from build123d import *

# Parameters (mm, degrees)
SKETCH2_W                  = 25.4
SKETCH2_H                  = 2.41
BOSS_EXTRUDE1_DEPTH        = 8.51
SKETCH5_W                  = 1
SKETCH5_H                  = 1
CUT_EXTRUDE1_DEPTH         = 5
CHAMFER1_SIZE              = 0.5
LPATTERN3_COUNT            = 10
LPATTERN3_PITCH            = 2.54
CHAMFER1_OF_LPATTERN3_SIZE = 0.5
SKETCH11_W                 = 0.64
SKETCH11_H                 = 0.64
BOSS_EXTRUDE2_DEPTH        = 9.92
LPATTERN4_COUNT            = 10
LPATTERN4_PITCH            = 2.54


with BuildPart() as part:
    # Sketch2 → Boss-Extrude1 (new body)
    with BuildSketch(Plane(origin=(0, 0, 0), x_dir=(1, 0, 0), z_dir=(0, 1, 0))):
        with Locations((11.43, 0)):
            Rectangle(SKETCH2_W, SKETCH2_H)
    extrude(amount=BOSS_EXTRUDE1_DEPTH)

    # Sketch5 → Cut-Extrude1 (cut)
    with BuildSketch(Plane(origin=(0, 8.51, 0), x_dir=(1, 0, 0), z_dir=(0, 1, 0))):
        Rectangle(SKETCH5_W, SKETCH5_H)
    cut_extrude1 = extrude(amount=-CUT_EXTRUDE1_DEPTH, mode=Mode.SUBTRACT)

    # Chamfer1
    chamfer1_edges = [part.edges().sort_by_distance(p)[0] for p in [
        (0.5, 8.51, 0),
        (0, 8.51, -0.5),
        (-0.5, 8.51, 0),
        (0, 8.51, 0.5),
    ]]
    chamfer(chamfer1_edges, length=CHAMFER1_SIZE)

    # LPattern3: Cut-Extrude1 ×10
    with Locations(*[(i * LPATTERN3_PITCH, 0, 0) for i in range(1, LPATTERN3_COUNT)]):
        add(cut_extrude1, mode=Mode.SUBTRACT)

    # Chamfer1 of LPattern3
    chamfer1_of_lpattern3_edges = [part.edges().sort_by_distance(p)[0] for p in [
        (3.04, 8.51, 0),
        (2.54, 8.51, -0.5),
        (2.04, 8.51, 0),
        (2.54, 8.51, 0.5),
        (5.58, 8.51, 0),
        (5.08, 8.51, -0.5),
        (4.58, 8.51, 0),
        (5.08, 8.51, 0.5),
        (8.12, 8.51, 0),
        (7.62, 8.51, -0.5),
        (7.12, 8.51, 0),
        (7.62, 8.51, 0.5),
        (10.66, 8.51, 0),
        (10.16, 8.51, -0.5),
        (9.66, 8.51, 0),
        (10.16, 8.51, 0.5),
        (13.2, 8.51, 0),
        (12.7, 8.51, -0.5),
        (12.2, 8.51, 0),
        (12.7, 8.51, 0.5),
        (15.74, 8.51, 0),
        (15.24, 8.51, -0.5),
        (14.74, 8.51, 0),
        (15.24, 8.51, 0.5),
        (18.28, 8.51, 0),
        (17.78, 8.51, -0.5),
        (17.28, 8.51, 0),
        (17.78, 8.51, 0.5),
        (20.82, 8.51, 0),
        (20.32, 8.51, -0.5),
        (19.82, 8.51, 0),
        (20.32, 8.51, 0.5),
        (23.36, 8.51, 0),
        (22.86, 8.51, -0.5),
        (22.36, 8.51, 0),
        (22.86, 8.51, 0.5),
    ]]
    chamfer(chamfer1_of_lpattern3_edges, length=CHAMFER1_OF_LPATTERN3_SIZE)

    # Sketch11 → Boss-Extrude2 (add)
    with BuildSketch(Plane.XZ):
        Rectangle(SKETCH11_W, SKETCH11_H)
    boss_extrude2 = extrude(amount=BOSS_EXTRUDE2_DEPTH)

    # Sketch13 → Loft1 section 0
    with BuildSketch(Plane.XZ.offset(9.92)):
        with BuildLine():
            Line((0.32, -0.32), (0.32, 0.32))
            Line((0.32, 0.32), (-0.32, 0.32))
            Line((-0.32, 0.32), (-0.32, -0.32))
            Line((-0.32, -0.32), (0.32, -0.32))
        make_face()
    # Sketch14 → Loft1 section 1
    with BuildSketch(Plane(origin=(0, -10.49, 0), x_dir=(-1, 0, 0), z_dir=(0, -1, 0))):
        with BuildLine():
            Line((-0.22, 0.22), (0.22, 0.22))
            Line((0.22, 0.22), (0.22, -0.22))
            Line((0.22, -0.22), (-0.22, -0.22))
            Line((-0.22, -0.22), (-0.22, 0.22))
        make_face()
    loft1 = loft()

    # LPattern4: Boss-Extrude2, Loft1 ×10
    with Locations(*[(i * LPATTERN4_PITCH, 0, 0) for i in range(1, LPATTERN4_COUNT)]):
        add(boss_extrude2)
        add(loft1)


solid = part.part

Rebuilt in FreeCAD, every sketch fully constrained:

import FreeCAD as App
import Part
import Sketcher
from FreeCAD import Vector
Q = App.Units.Quantity


def edges_at(feature, points):
    """Names of the edges that pass closest to the given points."""
    edges = feature.Shape.Edges
    near = lambda p: min(range(len(edges)), key=lambda i: edges[i].distToShape(Part.Vertex(*p))[0])
    return sorted({f"Edge{near(p) + 1}" for p in points})

doc = App.newDocument("Part")
body = doc.addObject("PartDesign::Body", "Body")

# Sketch on XZ plane
sketch1 = body.newObject("Sketcher::SketchObject", "Sketch")
sketch1.AttachmentSupport = (doc.getObject("XZ_Plane"), [""])
sketch1.MapMode = "FlatFace"
sketch1.addGeometry(Part.LineSegment(Vector(-1.3, -1.2, 0), Vector(-1.3, 1.2, 0)), False)
sketch1.addGeometry(Part.LineSegment(Vector(-1.3, 1.2, 0), Vector(24.1, 1.2, 0)), False)
sketch1.addGeometry(Part.LineSegment(Vector(24.1, 1.2, 0), Vector(24.1, -1.2, 0)), False)
sketch1.addGeometry(Part.LineSegment(Vector(24.1, -1.2, 0), Vector(-1.3, -1.2, 0)), False)
sketch1.addConstraint(Sketcher.Constraint("Coincident", 0, 2, 1, 1))
sketch1.addConstraint(Sketcher.Constraint("Coincident", 1, 2, 2, 1))
sketch1.addConstraint(Sketcher.Constraint("Coincident", 2, 2, 3, 1))
sketch1.addConstraint(Sketcher.Constraint("Coincident", 3, 2, 0, 1))
sketch1.addConstraint(Sketcher.Constraint("Vertical", 0))
sketch1.addConstraint(Sketcher.Constraint("Horizontal", 1))
sketch1.addConstraint(Sketcher.Constraint("Vertical", 2))
sketch1.addConstraint(Sketcher.Constraint("Horizontal", 3))
sketch1.addConstraint(Sketcher.Constraint("DistanceX", 1, 1, 1, 2, Q("25.4 mm")))
sketch1.addConstraint(Sketcher.Constraint("DistanceY", 0, 1, 0, 2, Q("2.41 mm")))
sketch1.addConstraint(Sketcher.Constraint("DistanceX", 0, 2, -1, 1, Q("1.27 mm")))
sketch1.addConstraint(Sketcher.Constraint("DistanceY", -1, 1, 0, 2, Q("1.205 mm")))
pad1 = body.newObject("PartDesign::Pad", "Pad")
pad1.Profile = sketch1
pad1.Length = 8.51
pad1.Reversed = True

# Sketch on XZ plane
sketch2 = body.newObject("Sketcher::SketchObject", "Sketch001")
sketch2.AttachmentSupport = (doc.getObject("XZ_Plane"), [""])
sketch2.MapMode = "FlatFace"
sketch2.AttachmentOffset = App.Placement(Vector(0, 0, -8.51), App.Rotation())
sketch2.addGeometry(Part.LineSegment(Vector(-0.5, -0.5, 0), Vector(-0.5, 0.5, 0)), False)
sketch2.addGeometry(Part.LineSegment(Vector(-0.5, 0.5, 0), Vector(0.5, 0.5, 0)), False)
sketch2.addGeometry(Part.LineSegment(Vector(0.5, 0.5, 0), Vector(0.5, -0.5, 0)), False)
sketch2.addGeometry(Part.LineSegment(Vector(0.5, -0.5, 0), Vector(-0.5, -0.5, 0)), False)
sketch2.addConstraint(Sketcher.Constraint("Coincident", 0, 2, 1, 1))
sketch2.addConstraint(Sketcher.Constraint("Coincident", 1, 2, 2, 1))
sketch2.addConstraint(Sketcher.Constraint("Coincident", 2, 2, 3, 1))
sketch2.addConstraint(Sketcher.Constraint("Coincident", 3, 2, 0, 1))
sketch2.addConstraint(Sketcher.Constraint("Vertical", 0))
sketch2.addConstraint(Sketcher.Constraint("Horizontal", 1))
sketch2.addConstraint(Sketcher.Constraint("Vertical", 2))
sketch2.addConstraint(Sketcher.Constraint("Horizontal", 3))
sketch2.addConstraint(Sketcher.Constraint("Symmetric", 0, 2, 2, 2, -1, 1))
sketch2.addConstraint(Sketcher.Constraint("Equal", 3, 0))
sketch2.addConstraint(Sketcher.Constraint("DistanceX", 1, 1, 1, 2, Q("1 mm")))
pocket1 = body.newObject("PartDesign::Pocket", "Pocket")
pocket1.Profile = sketch2
pocket1.Length = 5
pocket1.Reversed = True
doc.recompute()

chamfer = body.newObject("PartDesign::Chamfer", "Chamfer")
chamfer.Base = (pocket1, edges_at(pocket1, [
    (0.5, 8.51, 0),
    (0, 8.51, -0.5),
    (-0.5, 8.51, 0),
    (0, 8.51, 0.5),
]))
chamfer.Size = 0.5
doc.recompute()

linearpattern = body.newObject("PartDesign::LinearPattern", "LinearPattern")
linearpattern.Originals = [pocket1]
linearpattern.Direction = (doc.getObject("X_Axis"), [""])
linearpattern.Mode = "offset"
linearpattern.Offset = 2.54
linearpattern.Occurrences = 10
body.Tip = linearpattern
doc.recompute()

chamfer2 = body.newObject("PartDesign::Chamfer", "Chamfer001")
chamfer2.Base = (linearpattern, edges_at(linearpattern, [
    (3.04, 8.51, 0),
    (2.54, 8.51, -0.5),
    (2.04, 8.51, 0),
    (2.54, 8.51, 0.5),
    (5.58, 8.51, 0),
    (5.08, 8.51, -0.5),
    (4.58, 8.51, 0),
    (5.08, 8.51, 0.5),
    (8.12, 8.51, 0),
    (7.62, 8.51, -0.5),
    (7.12, 8.51, 0),
    (7.62, 8.51, 0.5),
    (10.66, 8.51, 0),
    (10.16, 8.51, -0.5),
    (9.66, 8.51, 0),
    (10.16, 8.51, 0.5),
    (13.2, 8.51, 0),
    (12.7, 8.51, -0.5),
    (12.2, 8.51, 0),
    (12.7, 8.51, 0.5),
    (15.74, 8.51, 0),
    (15.24, 8.51, -0.5),
    (14.74, 8.51, 0),
    (15.24, 8.51, 0.5),
    (18.28, 8.51, 0),
    (17.78, 8.51, -0.5),
    (17.28, 8.51, 0),
    (17.78, 8.51, 0.5),
    (20.82, 8.51, 0),
    (20.32, 8.51, -0.5),
    (19.82, 8.51, 0),
    (20.32, 8.51, 0.5),
    (23.36, 8.51, 0),
    (22.86, 8.51, -0.5),
    (22.36, 8.51, 0),
    (22.86, 8.51, 0.5),
]))
chamfer2.Size = 0.5

# Sketch on XZ plane
sketch3 = body.newObject("Sketcher::SketchObject", "Sketch002")
sketch3.AttachmentSupport = (doc.getObject("XZ_Plane"), [""])
sketch3.MapMode = "FlatFace"
sketch3.addGeometry(Part.LineSegment(Vector(-0.3, 0.3, 0), Vector(-0.3, -0.3, 0)), False)
sketch3.addGeometry(Part.LineSegment(Vector(-0.3, -0.3, 0), Vector(0.3, -0.3, 0)), False)
sketch3.addGeometry(Part.LineSegment(Vector(0.3, -0.3, 0), Vector(0.3, 0.3, 0)), False)
sketch3.addGeometry(Part.LineSegment(Vector(0.3, 0.3, 0), Vector(-0.3, 0.3, 0)), False)
sketch3.addConstraint(Sketcher.Constraint("Coincident", 0, 2, 1, 1))
sketch3.addConstraint(Sketcher.Constraint("Coincident", 1, 2, 2, 1))
sketch3.addConstraint(Sketcher.Constraint("Coincident", 2, 2, 3, 1))
sketch3.addConstraint(Sketcher.Constraint("Coincident", 3, 2, 0, 1))
sketch3.addConstraint(Sketcher.Constraint("Vertical", 0))
sketch3.addConstraint(Sketcher.Constraint("Horizontal", 1))
sketch3.addConstraint(Sketcher.Constraint("Vertical", 2))
sketch3.addConstraint(Sketcher.Constraint("Horizontal", 3))
sketch3.addConstraint(Sketcher.Constraint("Symmetric", 0, 2, 2, 2, -1, 1))
sketch3.addConstraint(Sketcher.Constraint("Equal", 3, 0))
sketch3.addConstraint(Sketcher.Constraint("DistanceX", 1, 1, 1, 2, Q("0.64 mm")))
pad2 = body.newObject("PartDesign::Pad", "Pad001")
pad2.Profile = sketch3
pad2.Length = 9.92

# Sketch on XZ plane
sketch4 = body.newObject("Sketcher::SketchObject", "Sketch003")
sketch4.AttachmentSupport = (doc.getObject("XZ_Plane"), [""])
sketch4.MapMode = "FlatFace"
sketch4.AttachmentOffset = App.Placement(Vector(0, 0, 9.92), App.Rotation())
sketch4.addGeometry(Part.LineSegment(Vector(0.3, -0.3, 0), Vector(0.3, 0.3, 0)), False)
sketch4.addGeometry(Part.LineSegment(Vector(0.3, 0.3, 0), Vector(-0.3, 0.3, 0)), False)
sketch4.addGeometry(Part.LineSegment(Vector(-0.3, 0.3, 0), Vector(-0.3, -0.3, 0)), False)
sketch4.addGeometry(Part.LineSegment(Vector(-0.3, -0.3, 0), Vector(0.3, -0.3, 0)), False)
sketch4.addConstraint(Sketcher.Constraint("Coincident", 0, 2, 1, 1))
sketch4.addConstraint(Sketcher.Constraint("Coincident", 1, 2, 2, 1))
sketch4.addConstraint(Sketcher.Constraint("Coincident", 2, 2, 3, 1))
sketch4.addConstraint(Sketcher.Constraint("Coincident", 3, 2, 0, 1))
sketch4.addConstraint(Sketcher.Constraint("Vertical", 0))
sketch4.addConstraint(Sketcher.Constraint("Horizontal", 1))
sketch4.addConstraint(Sketcher.Constraint("Vertical", 2))
sketch4.addConstraint(Sketcher.Constraint("Horizontal", 3))
sketch4.addConstraint(Sketcher.Constraint("Symmetric", 0, 2, 2, 2, -1, 1))
sketch4.addConstraint(Sketcher.Constraint("Equal", 3, 0))
sketch4.addConstraint(Sketcher.Constraint("DistanceX", 1, 2, 1, 1, Q("0.64 mm")))

# Sketch on XZ plane
sketch5 = body.newObject("Sketcher::SketchObject", "Sketch004")
sketch5.AttachmentSupport = (doc.getObject("XZ_Plane"), [""])
sketch5.MapMode = "FlatFace"
sketch5.AttachmentOffset = App.Placement(Vector(0, 0, 10.49), App.Rotation())
sketch5.addGeometry(Part.LineSegment(Vector(-0.22, -0.22, 0), Vector(0.22, -0.22, 0)), False)
sketch5.addGeometry(Part.LineSegment(Vector(0.22, -0.22, 0), Vector(0.22, 0.22, 0)), False)
sketch5.addGeometry(Part.LineSegment(Vector(0.22, 0.22, 0), Vector(-0.22, 0.22, 0)), False)
sketch5.addGeometry(Part.LineSegment(Vector(-0.22, 0.22, 0), Vector(-0.22, -0.22, 0)), False)
sketch5.addConstraint(Sketcher.Constraint("Coincident", 0, 2, 1, 1))
sketch5.addConstraint(Sketcher.Constraint("Coincident", 1, 2, 2, 1))
sketch5.addConstraint(Sketcher.Constraint("Coincident", 2, 2, 3, 1))
sketch5.addConstraint(Sketcher.Constraint("Coincident", 3, 2, 0, 1))
sketch5.addConstraint(Sketcher.Constraint("Horizontal", 0))
sketch5.addConstraint(Sketcher.Constraint("Vertical", 1))
sketch5.addConstraint(Sketcher.Constraint("Horizontal", 2))
sketch5.addConstraint(Sketcher.Constraint("Vertical", 3))
sketch5.addConstraint(Sketcher.Constraint("Symmetric", 0, 2, 2, 2, -1, 1))
sketch5.addConstraint(Sketcher.Constraint("Equal", 2, 1))
sketch5.addConstraint(Sketcher.Constraint("DistanceX", 0, 1, 0, 2, Q("0.44 mm")))

additiveloft = body.newObject("PartDesign::AdditiveLoft", "AdditiveLoft")
additiveloft.Profile = sketch4
additiveloft.Sections = [sketch5]
doc.recompute()

linearpattern2 = body.newObject("PartDesign::LinearPattern", "LinearPattern001")
linearpattern2.Originals = [pad2, additiveloft]
linearpattern2.Direction = (doc.getObject("X_Axis"), [""])
linearpattern2.Mode = "offset"
linearpattern2.Offset = 2.54
linearpattern2.Occurrences = 10
body.Tip = linearpattern2

doc.recompute()
